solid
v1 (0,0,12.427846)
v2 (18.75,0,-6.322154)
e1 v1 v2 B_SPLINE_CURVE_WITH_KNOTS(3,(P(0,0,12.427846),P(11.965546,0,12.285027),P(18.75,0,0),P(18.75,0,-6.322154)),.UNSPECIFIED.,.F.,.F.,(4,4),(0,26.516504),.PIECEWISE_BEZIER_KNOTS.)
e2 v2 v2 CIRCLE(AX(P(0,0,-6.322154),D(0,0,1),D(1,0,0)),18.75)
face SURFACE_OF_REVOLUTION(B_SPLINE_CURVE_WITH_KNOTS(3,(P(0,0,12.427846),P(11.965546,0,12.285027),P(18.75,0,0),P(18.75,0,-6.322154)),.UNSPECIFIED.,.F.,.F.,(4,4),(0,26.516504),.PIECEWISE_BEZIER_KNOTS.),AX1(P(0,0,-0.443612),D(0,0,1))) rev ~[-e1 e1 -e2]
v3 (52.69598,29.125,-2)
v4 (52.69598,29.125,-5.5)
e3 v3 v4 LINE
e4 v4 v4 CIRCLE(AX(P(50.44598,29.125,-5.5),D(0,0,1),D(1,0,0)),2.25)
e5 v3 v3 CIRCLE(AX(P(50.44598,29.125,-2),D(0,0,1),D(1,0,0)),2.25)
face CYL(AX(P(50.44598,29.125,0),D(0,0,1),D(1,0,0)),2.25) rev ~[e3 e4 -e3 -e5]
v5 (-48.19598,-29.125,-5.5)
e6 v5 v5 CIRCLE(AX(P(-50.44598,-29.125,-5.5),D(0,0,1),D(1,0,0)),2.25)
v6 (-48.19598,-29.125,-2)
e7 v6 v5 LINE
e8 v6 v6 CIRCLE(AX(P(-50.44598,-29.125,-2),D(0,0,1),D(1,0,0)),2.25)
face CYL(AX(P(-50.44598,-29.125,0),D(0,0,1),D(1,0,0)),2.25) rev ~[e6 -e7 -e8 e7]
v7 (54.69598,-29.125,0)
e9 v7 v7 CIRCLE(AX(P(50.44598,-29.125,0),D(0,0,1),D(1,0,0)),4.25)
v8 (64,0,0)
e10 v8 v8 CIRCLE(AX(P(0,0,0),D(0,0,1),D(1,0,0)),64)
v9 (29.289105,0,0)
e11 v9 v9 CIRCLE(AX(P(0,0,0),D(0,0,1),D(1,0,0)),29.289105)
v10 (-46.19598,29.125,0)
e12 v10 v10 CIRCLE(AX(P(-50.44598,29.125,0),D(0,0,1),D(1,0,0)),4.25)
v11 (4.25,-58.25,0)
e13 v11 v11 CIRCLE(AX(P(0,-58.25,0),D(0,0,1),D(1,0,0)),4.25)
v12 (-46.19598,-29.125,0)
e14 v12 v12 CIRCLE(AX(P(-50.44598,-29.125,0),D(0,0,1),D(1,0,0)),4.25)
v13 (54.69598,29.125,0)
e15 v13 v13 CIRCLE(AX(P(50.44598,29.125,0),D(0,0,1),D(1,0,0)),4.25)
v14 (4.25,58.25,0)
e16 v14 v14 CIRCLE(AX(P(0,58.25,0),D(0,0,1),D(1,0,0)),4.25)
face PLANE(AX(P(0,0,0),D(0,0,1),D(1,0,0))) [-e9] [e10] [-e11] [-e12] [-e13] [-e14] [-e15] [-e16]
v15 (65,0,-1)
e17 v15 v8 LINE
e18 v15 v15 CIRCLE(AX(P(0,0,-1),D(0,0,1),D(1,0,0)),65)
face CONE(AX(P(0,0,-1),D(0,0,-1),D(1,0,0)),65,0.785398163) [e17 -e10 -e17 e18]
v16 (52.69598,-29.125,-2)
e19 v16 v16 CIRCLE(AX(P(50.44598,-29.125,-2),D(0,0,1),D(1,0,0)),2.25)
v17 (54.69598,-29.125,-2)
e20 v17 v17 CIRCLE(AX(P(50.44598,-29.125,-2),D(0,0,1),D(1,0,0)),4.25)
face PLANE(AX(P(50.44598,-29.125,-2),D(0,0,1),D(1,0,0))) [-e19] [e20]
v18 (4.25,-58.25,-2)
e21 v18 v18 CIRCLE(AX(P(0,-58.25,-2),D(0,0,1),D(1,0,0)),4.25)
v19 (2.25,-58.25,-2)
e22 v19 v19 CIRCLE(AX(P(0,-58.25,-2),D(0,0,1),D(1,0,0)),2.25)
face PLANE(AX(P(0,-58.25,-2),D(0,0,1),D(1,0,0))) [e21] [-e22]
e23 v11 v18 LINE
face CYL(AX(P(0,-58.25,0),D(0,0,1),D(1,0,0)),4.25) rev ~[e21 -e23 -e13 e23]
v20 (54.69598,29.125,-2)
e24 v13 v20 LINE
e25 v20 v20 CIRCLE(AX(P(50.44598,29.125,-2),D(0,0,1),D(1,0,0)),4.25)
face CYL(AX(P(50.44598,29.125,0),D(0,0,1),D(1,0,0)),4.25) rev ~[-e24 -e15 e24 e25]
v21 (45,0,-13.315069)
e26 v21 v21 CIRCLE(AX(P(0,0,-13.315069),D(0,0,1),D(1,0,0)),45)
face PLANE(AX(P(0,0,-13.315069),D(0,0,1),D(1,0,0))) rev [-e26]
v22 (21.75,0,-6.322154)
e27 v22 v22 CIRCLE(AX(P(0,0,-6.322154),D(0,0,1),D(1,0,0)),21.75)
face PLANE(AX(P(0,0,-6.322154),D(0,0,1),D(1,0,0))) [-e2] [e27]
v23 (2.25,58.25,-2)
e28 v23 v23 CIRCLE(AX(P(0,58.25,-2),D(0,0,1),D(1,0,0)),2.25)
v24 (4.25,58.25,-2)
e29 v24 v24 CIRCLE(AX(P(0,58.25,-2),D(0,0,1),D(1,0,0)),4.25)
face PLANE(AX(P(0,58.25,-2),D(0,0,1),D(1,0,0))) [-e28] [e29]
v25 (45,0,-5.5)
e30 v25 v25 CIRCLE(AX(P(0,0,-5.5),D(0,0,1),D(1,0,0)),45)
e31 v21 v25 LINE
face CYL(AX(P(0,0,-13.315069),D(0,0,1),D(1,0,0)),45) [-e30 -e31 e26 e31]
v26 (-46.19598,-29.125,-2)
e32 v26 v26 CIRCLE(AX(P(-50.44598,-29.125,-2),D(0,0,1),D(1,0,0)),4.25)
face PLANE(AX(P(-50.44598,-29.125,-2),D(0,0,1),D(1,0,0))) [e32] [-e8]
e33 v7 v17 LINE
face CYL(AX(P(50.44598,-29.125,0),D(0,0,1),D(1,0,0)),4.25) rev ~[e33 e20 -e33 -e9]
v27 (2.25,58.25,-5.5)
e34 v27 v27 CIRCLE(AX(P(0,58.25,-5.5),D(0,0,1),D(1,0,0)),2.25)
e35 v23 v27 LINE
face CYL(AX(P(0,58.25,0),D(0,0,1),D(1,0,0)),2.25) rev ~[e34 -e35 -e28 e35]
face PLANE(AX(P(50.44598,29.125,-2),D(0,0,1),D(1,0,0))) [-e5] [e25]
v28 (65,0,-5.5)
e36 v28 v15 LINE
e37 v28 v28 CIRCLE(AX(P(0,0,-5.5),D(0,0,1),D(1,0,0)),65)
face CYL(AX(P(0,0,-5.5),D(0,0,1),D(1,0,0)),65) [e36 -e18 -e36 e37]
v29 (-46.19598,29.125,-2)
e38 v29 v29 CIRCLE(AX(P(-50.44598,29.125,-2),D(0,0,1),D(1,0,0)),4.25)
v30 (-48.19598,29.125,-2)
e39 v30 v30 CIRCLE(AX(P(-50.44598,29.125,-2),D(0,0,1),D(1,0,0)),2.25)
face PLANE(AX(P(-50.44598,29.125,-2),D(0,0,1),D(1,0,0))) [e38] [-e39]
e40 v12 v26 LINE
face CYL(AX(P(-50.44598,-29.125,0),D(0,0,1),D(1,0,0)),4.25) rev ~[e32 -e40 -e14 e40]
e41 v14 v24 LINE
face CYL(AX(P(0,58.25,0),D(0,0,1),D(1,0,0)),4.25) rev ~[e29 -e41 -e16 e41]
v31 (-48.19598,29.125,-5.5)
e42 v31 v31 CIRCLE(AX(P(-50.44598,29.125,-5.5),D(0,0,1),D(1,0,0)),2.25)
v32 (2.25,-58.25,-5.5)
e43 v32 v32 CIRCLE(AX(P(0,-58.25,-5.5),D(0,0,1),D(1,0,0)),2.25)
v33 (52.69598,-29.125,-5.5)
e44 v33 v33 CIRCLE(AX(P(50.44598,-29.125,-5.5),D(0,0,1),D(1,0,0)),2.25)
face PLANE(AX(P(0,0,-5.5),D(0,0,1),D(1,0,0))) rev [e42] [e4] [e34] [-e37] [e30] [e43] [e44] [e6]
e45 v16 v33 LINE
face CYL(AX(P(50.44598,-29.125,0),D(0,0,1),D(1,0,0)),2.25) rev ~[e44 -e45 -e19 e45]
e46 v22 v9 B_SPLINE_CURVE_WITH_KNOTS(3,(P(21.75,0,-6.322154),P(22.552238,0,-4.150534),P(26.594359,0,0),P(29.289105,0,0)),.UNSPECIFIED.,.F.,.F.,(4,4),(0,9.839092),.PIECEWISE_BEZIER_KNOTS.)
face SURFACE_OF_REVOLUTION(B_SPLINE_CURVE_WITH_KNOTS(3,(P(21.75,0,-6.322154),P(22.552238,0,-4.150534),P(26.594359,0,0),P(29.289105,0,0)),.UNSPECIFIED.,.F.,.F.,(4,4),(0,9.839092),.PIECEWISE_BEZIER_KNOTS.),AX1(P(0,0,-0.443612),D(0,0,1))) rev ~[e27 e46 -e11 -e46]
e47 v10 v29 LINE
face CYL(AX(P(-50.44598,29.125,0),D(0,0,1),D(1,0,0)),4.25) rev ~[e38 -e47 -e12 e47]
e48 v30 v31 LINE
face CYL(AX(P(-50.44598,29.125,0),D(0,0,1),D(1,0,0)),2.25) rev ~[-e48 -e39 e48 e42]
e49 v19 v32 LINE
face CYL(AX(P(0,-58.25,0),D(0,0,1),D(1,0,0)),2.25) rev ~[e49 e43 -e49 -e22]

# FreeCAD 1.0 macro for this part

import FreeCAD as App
import Part
import Sketcher

V = App.Vector


def edges_at(feature, points):
    """Names of the edges that pass closest to the given points."""
    edges = feature.Shape.Edges
    near = lambda p: min(range(len(edges)), key=lambda i: edges[i].distToShape(Part.Vertex(*p))[0])
    return sorted({f"Edge{near(p) + 1}" for p in points})

doc = App.newDocument("Part")
body = doc.addObject("PartDesign::Body", "Body")

# Sketch on XZ plane
sketch1 = doc.addObject("Sketcher::SketchObject", "Sketch")
body.addObject(sketch1)
sketch1.AttachmentSupport = (doc.XZ_Plane, [""])
sketch1.MapMode = "FlatFace"
sketch1.addGeometry([
    Part.LineSegment(V(65, -5.5, 0), V(65, 0, 0)),  # 0
    Part.LineSegment(V(65, 0, 0), V(29.289105, 0, 0)),  # 1
    Part.BSplineCurve([V(21.75, -6.322154, 0), V(22.552238, -4.150534, 0), V(26.594359, 0, 0), V(29.289105, 0, 0)], [4, 4], [0, 9.839092], False, 3, [1, 1, 1, 1], False),  # 2
    Part.LineSegment(V(21.75, -6.322154, 0), V(18.75, -6.322154, 0)),  # 3
    Part.BSplineCurve([V(0, 12.427846, 0), V(11.965546, 12.285027, 0), V(18.75, 0, 0), V(18.75, -6.322154, 0)], [4, 4], [0, 26.516504], False, 3, [1, 1, 1, 1], False),  # 4
    Part.LineSegment(V(0, 12.427846, 0), V(0, -13.315069, 0)),  # 5
    Part.LineSegment(V(0, -13.315069, 0), V(45, -13.315069, 0)),  # 6
    Part.LineSegment(V(45, -13.315069, 0), V(45, -5.5, 0)),  # 7
    Part.LineSegment(V(45, -5.5, 0), V(65, -5.5, 0)),  # 8
], False)
sketch1.addConstraint([
    Sketcher.Constraint("Block", 2),
    Sketcher.Constraint("Block", 4),
    Sketcher.Constraint("Coincident", 0, 2, 1, 1),
    Sketcher.Constraint("Coincident", 1, 2, 2, 2),
    Sketcher.Constraint("Coincident", 2, 1, 3, 1),
    Sketcher.Constraint("Coincident", 3, 2, 4, 2),
    Sketcher.Constraint("Coincident", 4, 1, 5, 1),
    Sketcher.Constraint("Coincident", 5, 2, 6, 1),
    Sketcher.Constraint("Coincident", 6, 2, 7, 1),
    Sketcher.Constraint("Coincident", 7, 2, 8, 1),
    Sketcher.Constraint("Coincident", 8, 2, 0, 1),
    Sketcher.Constraint("Vertical", 0),
    Sketcher.Constraint("Horizontal", 1),
    Sketcher.Constraint("Vertical", 5),
    Sketcher.Constraint("Horizontal", 6),
    Sketcher.Constraint("Vertical", 7),
    Sketcher.Constraint("Horizontal", 8),
    Sketcher.Constraint("DistanceX", 6, 1, 6, 2, 45.0),
    Sketcher.Constraint("DistanceX", 8, 1, 8, 2, 20.0),
    Sketcher.Constraint("DistanceY", 0, 1, 0, 2, 5.5),
    Sketcher.Constraint("DistanceY", 7, 1, 7, 2, 7.815069),
])
revolution = doc.addObject("PartDesign::Revolution", "Revolution")
body.addObject(revolution)
revolution.Profile = sketch1
revolution.ReferenceAxis = (sketch1, ["V_Axis"])
revolution.Angle = 360

# Sketch on XY plane
sketch2 = doc.addObject("Sketcher::SketchObject", "Sketch001")
body.addObject(sketch2)
sketch2.AttachmentSupport = (doc.XY_Plane, [""])
sketch2.MapMode = "FlatFace"
sketch2.addGeometry([
    Part.Circle(V(-50.44598, 29.125, 0), V(0, 0, 1), 2.25),  # 0
    Part.Circle(V(0, 58.25, 0), V(0, 0, 1), 2.25),  # 1
    Part.Circle(V(50.44598, 29.125, 0), V(0, 0, 1), 2.25),  # 2
    Part.Circle(V(50.44598, -29.125, 0), V(0, 0, 1), 2.25),  # 3
    Part.Circle(V(0, -58.25, 0), V(0, 0, 1), 2.25),  # 4
    Part.Circle(V(-50.44598, -29.125, 0), V(0, 0, 1), 2.25),  # 5
], False)
sketch2.addConstraint([
    Sketcher.Constraint("Equal", 0, 1),
    Sketcher.Constraint("Equal", 1, 2),
    Sketcher.Constraint("Equal", 2, 3),
    Sketcher.Constraint("Equal", 3, 4),
    Sketcher.Constraint("Equal", 4, 5),
    Sketcher.Constraint("Symmetric", 0, 3, 3, 3, -1, 1),
    Sketcher.Constraint("Symmetric", 1, 3, 4, 3, -1, 1),
    Sketcher.Constraint("Symmetric", 2, 3, 5, 3, -1, 1),
    Sketcher.Constraint("Symmetric", 0, 3, 2, 3, -2),
    Sketcher.Constraint("PointOnObject", 1, 3, -2),
    Sketcher.Constraint("Diameter", 0, 4.5),
    Sketcher.Constraint("DistanceY", 4, 3, 1, 3, 116.5),
    Sketcher.Constraint("DistanceY", 3, 3, 2, 3, 58.25),
    Sketcher.Constraint("DistanceX", 0, 3, -1, 1, 50.44598),
])
pocket1 = doc.addObject("PartDesign::Pocket", "Pocket")
body.addObject(pocket1)
pocket1.Profile = sketch2
pocket1.Length = 25

# Sketch on XY plane
sketch3 = doc.addObject("Sketcher::SketchObject", "Sketch002")
body.addObject(sketch3)
sketch3.AttachmentSupport = (doc.XY_Plane, [""])
sketch3.MapMode = "FlatFace"
sketch3.addGeometry([
    Part.Circle(V(-50.44598, 29.125, 0), V(0, 0, 1), 4.25),  # 0
    Part.Circle(V(-50.44598, 29.125, 0), V(0, 0, 1), 2.25),  # 1
    Part.Circle(V(0, 58.25, 0), V(0, 0, 1), 4.25),  # 2
    Part.Circle(V(0, 58.25, 0), V(0, 0, 1), 2.25),  # 3
    Part.Circle(V(50.44598, 29.125, 0), V(0, 0, 1), 4.25),  # 4
    Part.Circle(V(50.44598, 29.125, 0), V(0, 0, 1), 2.25),  # 5
    Part.Circle(V(50.44598, -29.125, 0), V(0, 0, 1), 4.25),  # 6
    Part.Circle(V(50.44598, -29.125, 0), V(0, 0, 1), 2.25),  # 7
    Part.Circle(V(0, -58.25, 0), V(0, 0, 1), 4.25),  # 8
    Part.Circle(V(0, -58.25, 0), V(0, 0, 1), 2.25),  # 9
    Part.Circle(V(-50.44598, -29.125, 0), V(0, 0, 1), 4.25),  # 10
    Part.Circle(V(-50.44598, -29.125, 0), V(0, 0, 1), 2.25),  # 11
], False)
sketch3.addConstraint([
    Sketcher.Constraint("Coincident", 1, 3, 0, 3),
    Sketcher.Constraint("Coincident", 3, 3, 2, 3),
    Sketcher.Constraint("Coincident", 5, 3, 4, 3),
    Sketcher.Constraint("Coincident", 7, 3, 6, 3),
    Sketcher.Constraint("Coincident", 9, 3, 8, 3),
    Sketcher.Constraint("Coincident", 11, 3, 10, 3),
    Sketcher.Constraint("Equal", 0, 2),
    Sketcher.Constraint("Equal", 1, 3),
    Sketcher.Constraint("Equal", 2, 4),
    Sketcher.Constraint("Equal", 3, 5),
    Sketcher.Constraint("Equal", 4, 6),
    Sketcher.Constraint("Equal", 5, 7),
    Sketcher.Constraint("Equal", 6, 8),
    Sketcher.Constraint("Equal", 7, 9),
    Sketcher.Constraint("Equal", 8, 10),
    Sketcher.Constraint("Equal", 9, 11),
    Sketcher.Constraint("Symmetric", 0, 3, 6, 3, -1, 1),
    Sketcher.Constraint("Symmetric", 2, 3, 8, 3, -1, 1),
    Sketcher.Constraint("Symmetric", 4, 3, 10, 3, -1, 1),
    Sketcher.Constraint("Symmetric", 0, 3, 4, 3, -2),
    Sketcher.Constraint("PointOnObject", 2, 3, -2),
    Sketcher.Constraint("Diameter", 0, 8.5),
    Sketcher.Constraint("Diameter", 1, 4.5),
    Sketcher.Constraint("DistanceY", -1, 1, 2, 3, 58.25),
    Sketcher.Constraint("DistanceY", 6, 3, 4, 3, 58.25),
    Sketcher.Constraint("DistanceX", 0, 3, -1, 1, 50.44598),
])
pocket2 = doc.addObject("PartDesign::Pocket", "Pocket001")
body.addObject(pocket2)
pocket2.Profile = sketch3
pocket2.Length = 2
doc.recompute()

chamfer = doc.addObject("PartDesign::Chamfer", "Chamfer")
body.addObject(chamfer)
chamfer.Base = (pocket2, edges_at(pocket2, [(-65, 0, 0)]))
chamfer.Size = 1

doc.recompute()
